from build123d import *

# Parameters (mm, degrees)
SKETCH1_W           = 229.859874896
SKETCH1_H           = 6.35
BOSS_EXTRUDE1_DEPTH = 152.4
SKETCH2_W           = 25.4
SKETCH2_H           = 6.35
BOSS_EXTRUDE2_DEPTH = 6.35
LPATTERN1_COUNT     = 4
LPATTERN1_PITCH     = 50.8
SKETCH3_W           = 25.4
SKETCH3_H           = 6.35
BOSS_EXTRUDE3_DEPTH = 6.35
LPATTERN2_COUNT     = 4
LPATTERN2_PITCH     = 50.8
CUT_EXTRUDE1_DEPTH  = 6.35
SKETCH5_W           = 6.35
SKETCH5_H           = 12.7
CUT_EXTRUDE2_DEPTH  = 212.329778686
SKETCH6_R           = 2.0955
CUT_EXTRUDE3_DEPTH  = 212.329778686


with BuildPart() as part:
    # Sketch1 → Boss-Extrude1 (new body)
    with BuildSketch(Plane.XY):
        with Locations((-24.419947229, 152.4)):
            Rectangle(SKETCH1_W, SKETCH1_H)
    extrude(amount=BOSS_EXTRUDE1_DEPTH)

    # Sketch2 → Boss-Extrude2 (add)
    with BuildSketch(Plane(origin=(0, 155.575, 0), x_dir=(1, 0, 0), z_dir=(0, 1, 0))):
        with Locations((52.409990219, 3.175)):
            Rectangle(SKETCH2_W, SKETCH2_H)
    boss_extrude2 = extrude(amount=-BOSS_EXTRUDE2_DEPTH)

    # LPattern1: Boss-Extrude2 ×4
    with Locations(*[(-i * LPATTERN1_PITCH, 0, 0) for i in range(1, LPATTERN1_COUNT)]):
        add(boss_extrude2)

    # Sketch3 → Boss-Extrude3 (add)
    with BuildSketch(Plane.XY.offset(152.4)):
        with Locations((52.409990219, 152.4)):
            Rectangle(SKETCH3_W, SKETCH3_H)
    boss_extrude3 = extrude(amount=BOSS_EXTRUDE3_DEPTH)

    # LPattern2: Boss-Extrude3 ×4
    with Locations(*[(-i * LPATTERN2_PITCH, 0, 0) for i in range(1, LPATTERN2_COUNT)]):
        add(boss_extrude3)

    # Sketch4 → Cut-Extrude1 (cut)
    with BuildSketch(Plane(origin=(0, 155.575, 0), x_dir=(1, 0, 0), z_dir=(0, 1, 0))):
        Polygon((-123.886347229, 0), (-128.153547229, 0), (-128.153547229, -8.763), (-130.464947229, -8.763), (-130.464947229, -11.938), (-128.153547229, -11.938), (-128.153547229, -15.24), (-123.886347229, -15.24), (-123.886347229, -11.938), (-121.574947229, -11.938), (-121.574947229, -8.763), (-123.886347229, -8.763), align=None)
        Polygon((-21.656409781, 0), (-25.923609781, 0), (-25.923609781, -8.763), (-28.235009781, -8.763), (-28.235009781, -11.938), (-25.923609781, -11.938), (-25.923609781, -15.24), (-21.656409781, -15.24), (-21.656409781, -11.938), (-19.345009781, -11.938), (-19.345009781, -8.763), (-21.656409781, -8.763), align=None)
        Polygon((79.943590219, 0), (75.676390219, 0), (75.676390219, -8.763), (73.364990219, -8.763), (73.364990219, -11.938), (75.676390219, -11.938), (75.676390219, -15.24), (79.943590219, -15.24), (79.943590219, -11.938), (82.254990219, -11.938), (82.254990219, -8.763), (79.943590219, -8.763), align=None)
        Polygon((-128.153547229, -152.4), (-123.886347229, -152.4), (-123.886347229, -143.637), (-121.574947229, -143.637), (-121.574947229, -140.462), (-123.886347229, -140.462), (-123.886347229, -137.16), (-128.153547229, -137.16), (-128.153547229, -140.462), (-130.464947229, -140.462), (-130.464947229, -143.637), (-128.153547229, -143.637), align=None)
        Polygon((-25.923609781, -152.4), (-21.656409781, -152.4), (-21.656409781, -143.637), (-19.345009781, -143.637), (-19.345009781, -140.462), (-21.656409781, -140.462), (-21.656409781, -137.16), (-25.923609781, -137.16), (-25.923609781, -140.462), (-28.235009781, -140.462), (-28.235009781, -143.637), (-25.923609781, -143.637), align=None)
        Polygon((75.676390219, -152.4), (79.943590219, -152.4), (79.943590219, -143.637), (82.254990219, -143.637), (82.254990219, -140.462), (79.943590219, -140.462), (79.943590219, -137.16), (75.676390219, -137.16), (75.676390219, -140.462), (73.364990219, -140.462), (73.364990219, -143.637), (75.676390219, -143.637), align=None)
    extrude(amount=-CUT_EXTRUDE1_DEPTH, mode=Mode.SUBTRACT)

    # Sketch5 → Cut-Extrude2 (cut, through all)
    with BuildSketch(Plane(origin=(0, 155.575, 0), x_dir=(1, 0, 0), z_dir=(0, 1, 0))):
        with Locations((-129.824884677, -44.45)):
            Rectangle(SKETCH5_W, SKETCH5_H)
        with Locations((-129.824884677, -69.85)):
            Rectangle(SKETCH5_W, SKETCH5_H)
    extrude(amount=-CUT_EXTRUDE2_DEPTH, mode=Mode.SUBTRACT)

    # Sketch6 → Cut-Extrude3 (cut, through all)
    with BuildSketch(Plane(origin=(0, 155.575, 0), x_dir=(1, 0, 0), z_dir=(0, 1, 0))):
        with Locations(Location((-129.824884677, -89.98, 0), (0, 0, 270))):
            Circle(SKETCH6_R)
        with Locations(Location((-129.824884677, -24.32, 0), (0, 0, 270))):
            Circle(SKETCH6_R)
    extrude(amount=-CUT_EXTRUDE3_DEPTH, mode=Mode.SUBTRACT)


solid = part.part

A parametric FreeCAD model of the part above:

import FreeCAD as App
import Part
import Sketcher
from FreeCAD import Vector
Q = App.Units.Quantity

doc = App.newDocument("Part")
params = doc.addObject("Spreadsheet::Sheet", "Params")
for row, (alias, value) in enumerate([
    ("sketch1_height", "0.25 in"),
    ("pad1_length", "6 in"),
    ("sketch2_width", "1 in"),
    ("sketch2_height", "0.25 in"),
    ("pad2_length", "0.25 in"),
    ("linearpattern_pitch", "2 in"),
    ("sketch3_width", "1 in"),
    ("sketch3_height", "0.25 in"),
    ("pad3_length", "0.25 in"),
    ("linearpattern2_pitch", "2 in"),
    ("sketch4_height", "0.13 in"),
    ("sketch4_width", "0.168 in"),
    ("sketch4_width2", "0.091 in"),
    ("sketch4_height2", "0.345 in"),
    ("pocket1_length", "0.25 in"),
    ("sketch5_height", "0.5 in"),
    ("sketch5_width", "0.25 in"),
    ("sketch6_diameter", "0.165 in"),
], start=1):
    params.set(f"A{row}", alias)
    params.set(f"B{row}", "=" + value)
    params.setAlias(f"B{row}", alias)

body = doc.addObject("PartDesign::Body", "Body")

sketch1 = doc.addObject("Sketcher::SketchObject", "Sketch")
body.addObject(sketch1)
sketch1.AttachmentSupport = (doc.XY_Plane, [""])
sketch1.MapMode = "FlatFace"
sketch1.addGeometry([
    Part.LineSegment(Vector(-139.349885, 155.575, 0), Vector(-139.349885, 149.225, 0)),
    Part.LineSegment(Vector(-139.349885, 149.225, 0), Vector(90.50999, 149.225, 0)),
    Part.LineSegment(Vector(90.50999, 149.225, 0), Vector(90.50999, 155.575, 0)),
    Part.LineSegment(Vector(90.50999, 155.575, 0), Vector(-139.349885, 155.575, 0)),
], False)
sketch1.addConstraint([
    Sketcher.Constraint("Coincident", 0, 2, 1, 1),
    Sketcher.Constraint("Coincident", 1, 2, 2, 1),
    Sketcher.Constraint("Coincident", 2, 2, 3, 1),
    Sketcher.Constraint("Coincident", 3, 2, 0, 1),
    Sketcher.Constraint("Vertical", 0),
    Sketcher.Constraint("Horizontal", 1),
    Sketcher.Constraint("Vertical", 2),
    Sketcher.Constraint("Horizontal", 3),
    Sketcher.Constraint("DistanceY", 0, 2, 0, 1, Q("0.25 in")),
    Sketcher.Constraint("DistanceY", -1, 1, 0, 2, Q("5.875 in")),
    Sketcher.Constraint("DistanceX", 1, 1, 1, 2, 229.859875),
    Sketcher.Constraint("DistanceX", -1, 1, 1, 2, 90.50999),
])
sketch1.setExpression("Constraints[8]", "Params.sketch1_height")
pad1 = doc.addObject("PartDesign::Pad", "Pad")
body.addObject(pad1)
pad1.Profile = sketch1
pad1.setExpression("Length", "Params.pad1_length")

sketch2 = doc.addObject("Sketcher::SketchObject", "Sketch001")
body.addObject(sketch2)
sketch2.AttachmentSupport = (doc.XZ_Plane, [""])
sketch2.MapMode = "FlatFace"
sketch2.AttachmentOffset = App.Placement(Vector(0, 0, -6.125 * 25.4), App.Rotation())
sketch2.addGeometry([
    Part.LineSegment(Vector(39.70999, -6.35, 0), Vector(39.70999, 0, 0)),
    Part.LineSegment(Vector(39.70999, 0, 0), Vector(65.10999, 0, 0)),
    Part.LineSegment(Vector(65.10999, 0, 0), Vector(65.10999, -6.35, 0)),
    Part.LineSegment(Vector(65.10999, -6.35, 0), Vector(39.70999, -6.35, 0)),
], False)
sketch2.addConstraint([
    Sketcher.Constraint("Coincident", 0, 2, 1, 1),
    Sketcher.Constraint("Coincident", 1, 2, 2, 1),
    Sketcher.Constraint("Coincident", 2, 2, 3, 1),
    Sketcher.Constraint("Coincident", 3, 2, 0, 1),
    Sketcher.Constraint("Vertical", 0),
    Sketcher.Constraint("Horizontal", 1),
    Sketcher.Constraint("Vertical", 2),
    Sketcher.Constraint("Horizontal", 3),
    Sketcher.Constraint("PointOnObject", 0, 2, -1),
    Sketcher.Constraint("DistanceX", 1, 1, 1, 2, Q("1 in")),
    Sketcher.Constraint("DistanceY", 0, 1, 0, 2, Q("0.25 in")),
    Sketcher.Constraint("DistanceX", -1, 1, 0, 2, 39.70999),
])
sketch2.setExpression("Constraints[9]", "Params.sketch2_width")
sketch2.setExpression("Constraints[10]", "Params.sketch2_height")
pad2 = doc.addObject("PartDesign::Pad", "Pad001")
body.addObject(pad2)
pad2.Profile = sketch2
pad2.setExpression("Length", "Params.pad2_length")
doc.recompute()

linearpattern = doc.addObject("PartDesign::LinearPattern", "LinearPattern")
body.addObject(linearpattern)
linearpattern.Originals = [pad2]
linearpattern.Direction = (doc.X_Axis, [""])
linearpattern.Mode = "offset"
linearpattern.setExpression("Offset", "Params.linearpattern_pitch")
linearpattern.Occurrences = 4
linearpattern.Reversed = True
body.Tip = linearpattern

sketch3 = doc.addObject("Sketcher::SketchObject", "Sketch002")
body.addObject(sketch3)
sketch3.AttachmentSupport = (doc.XY_Plane, [""])
sketch3.MapMode = "FlatFace"
sketch3.AttachmentOffset = App.Placement(Vector(0, 0, 6 * 25.4), App.Rotation())
sketch3.addGeometry([
    Part.LineSegment(Vector(39.70999, 155.575, 0), Vector(39.70999, 149.225, 0)),
    Part.LineSegment(Vector(39.70999, 149.225, 0), Vector(65.10999, 149.225, 0)),
    Part.LineSegment(Vector(65.10999, 149.225, 0), Vector(65.10999, 155.575, 0)),
    Part.LineSegment(Vector(65.10999, 155.575, 0), Vector(39.70999, 155.575, 0)),
], False)
sketch3.addConstraint([
    Sketcher.Constraint("Coincident", 0, 2, 1, 1),
    Sketcher.Constraint("Coincident", 1, 2, 2, 1),
    Sketcher.Constraint("Coincident", 2, 2, 3, 1),
    Sketcher.Constraint("Coincident", 3, 2, 0, 1),
    Sketcher.Constraint("Vertical", 0),
    Sketcher.Constraint("Horizontal", 1),
    Sketcher.Constraint("Vertical", 2),
    Sketcher.Constraint("Horizontal", 3),
    Sketcher.Constraint("DistanceX", 1, 1, 1, 2, Q("1 in")),
    Sketcher.Constraint("DistanceY", 0, 2, 0, 1, Q("0.25 in")),
    Sketcher.Constraint("DistanceY", -1, 1, 0, 2, Q("5.875 in")),
    Sketcher.Constraint("DistanceX", -1, 1, 0, 2, 39.70999),
])
sketch3.setExpression("Constraints[8]", "Params.sketch3_width")
sketch3.setExpression("Constraints[9]", "Params.sketch3_height")
pad3 = doc.addObject("PartDesign::Pad", "Pad002")
body.addObject(pad3)
pad3.Profile = sketch3
pad3.setExpression("Length", "Params.pad3_length")
doc.recompute()

linearpattern2 = doc.addObject("PartDesign::LinearPattern", "LinearPattern001")
body.addObject(linearpattern2)
linearpattern2.Originals = [pad3]
linearpattern2.Direction = (doc.X_Axis, [""])
linearpattern2.Mode = "offset"
linearpattern2.setExpression("Offset", "Params.linearpattern2_pitch")
linearpattern2.Occurrences = 4
linearpattern2.Reversed = True
body.Tip = linearpattern2

sketch4 = doc.addObject("Sketcher::SketchObject", "Sketch003")
body.addObject(sketch4)
sketch4.AttachmentSupport = (doc.XZ_Plane, [""])
sketch4.MapMode = "FlatFace"
sketch4.AttachmentOffset = App.Placement(Vector(0, 0, -6.125 * 25.4), App.Rotation())
sketch4.addGeometry([
    Part.LineSegment(Vector(-123.886347, 0, 0), Vector(-128.153547, 0, 0)),
    Part.LineSegment(Vector(-128.153547, 0, 0), Vector(-128.153547, 8.763, 0)),
    Part.LineSegment(Vector(-128.153547, 8.763, 0), Vector(-130.464947, 8.763, 0)),
    Part.LineSegment(Vector(-130.464947, 8.763, 0), Vector(-130.464947, 11.938, 0)),
    Part.LineSegment(Vector(-130.464947, 11.938, 0), Vector(-128.153547, 11.938, 0)),
    Part.LineSegment(Vector(-128.153547, 11.938, 0), Vector(-128.153547, 15.24, 0)),
    Part.LineSegment(Vector(-128.153547, 15.24, 0), Vector(-123.886347, 15.24, 0)),
    Part.LineSegment(Vector(-123.886347, 15.24, 0), Vector(-123.886347, 11.938, 0)),
    Part.LineSegment(Vector(-123.886347, 11.938, 0), Vector(-121.574947, 11.938, 0)),
    Part.LineSegment(Vector(-121.574947, 11.938, 0), Vector(-121.574947, 8.763, 0)),
    Part.LineSegment(Vector(-121.574947, 8.763, 0), Vector(-123.886347, 8.763, 0)),
    Part.LineSegment(Vector(-123.886347, 8.763, 0), Vector(-123.886347, 0, 0)),
    Part.LineSegment(Vector(-21.65641, 0, 0), Vector(-25.92361, 0, 0)),
    Part.LineSegment(Vector(-25.92361, 0, 0), Vector(-25.92361, 8.763, 0)),
    Part.LineSegment(Vector(-25.92361, 8.763, 0), Vector(-28.23501, 8.763, 0)),
    Part.LineSegment(Vector(-28.23501, 8.763, 0), Vector(-28.23501, 11.938, 0)),
    Part.LineSegment(Vector(-28.23501, 11.938, 0), Vector(-25.92361, 11.938, 0)),
    Part.LineSegment(Vector(-25.92361, 11.938, 0), Vector(-25.92361, 15.24, 0)),
    Part.LineSegment(Vector(-25.92361, 15.24, 0), Vector(-21.65641, 15.24, 0)),
    Part.LineSegment(Vector(-21.65641, 15.24, 0), Vector(-21.65641, 11.938, 0)),
    Part.LineSegment(Vector(-21.65641, 11.938, 0), Vector(-19.34501, 11.938, 0)),
    Part.LineSegment(Vector(-19.34501, 11.938, 0), Vector(-19.34501, 8.763, 0)),
    Part.LineSegment(Vector(-19.34501, 8.763, 0), Vector(-21.65641, 8.763, 0)),
    Part.LineSegment(Vector(-21.65641, 8.763, 0), Vector(-21.65641, 0, 0)),
    Part.LineSegment(Vector(79.94359, 0, 0), Vector(75.67639, 0, 0)),
    Part.LineSegment(Vector(75.67639, 0, 0), Vector(75.67639, 8.763, 0)),
    Part.LineSegment(Vector(75.67639, 8.763, 0), Vector(73.36499, 8.763, 0)),
    Part.LineSegment(Vector(73.36499, 8.763, 0), Vector(73.36499, 11.938, 0)),
    Part.LineSegment(Vector(73.36499, 11.938, 0), Vector(75.67639, 11.938, 0)),
    Part.LineSegment(Vector(75.67639, 11.938, 0), Vector(75.67639, 15.24, 0)),
    Part.LineSegment(Vector(75.67639, 15.24, 0), Vector(79.94359, 15.24, 0)),
    Part.LineSegment(Vector(79.94359, 15.24, 0), Vector(79.94359, 11.938, 0)),
    Part.LineSegment(Vector(79.94359, 11.938, 0), Vector(82.25499, 11.938, 0)),
    Part.LineSegment(Vector(82.25499, 11.938, 0), Vector(82.25499, 8.763, 0)),
    Part.LineSegment(Vector(82.25499, 8.763, 0), Vector(79.94359, 8.763, 0)),
    Part.LineSegment(Vector(79.94359, 8.763, 0), Vector(79.94359, 0, 0)),
    Part.LineSegment(Vector(-128.153547, 152.4, 0), Vector(-123.886347, 152.4, 0)),
    Part.LineSegment(Vector(-123.886347, 152.4, 0), Vector(-123.886347, 143.637, 0)),
    Part.LineSegment(Vector(-123.886347, 143.637, 0), Vector(-121.574947, 143.637, 0)),
    Part.LineSegment(Vector(-121.574947, 143.637, 0), Vector(-121.574947, 140.462, 0)),
    Part.LineSegment(Vector(-121.574947, 140.462, 0), Vector(-123.886347, 140.462, 0)),
    Part.LineSegment(Vector(-123.886347, 140.462, 0), Vector(-123.886347, 137.16, 0)),
    Part.LineSegment(Vector(-123.886347, 137.16, 0), Vector(-128.153547, 137.16, 0)),
    Part.LineSegment(Vector(-128.153547, 137.16, 0), Vector(-128.153547, 140.462, 0)),
    Part.LineSegment(Vector(-128.153547, 140.462, 0), Vector(-130.464947, 140.462, 0)),
    Part.LineSegment(Vector(-130.464947, 140.462, 0), Vector(-130.464947, 143.637, 0)),
    Part.LineSegment(Vector(-130.464947, 143.637, 0), Vector(-128.153547, 143.637, 0)),
    Part.LineSegment(Vector(-128.153547, 143.637, 0), Vector(-128.153547, 152.4, 0)),
    Part.LineSegment(Vector(-25.92361, 152.4, 0), Vector(-21.65641, 152.4, 0)),
    Part.LineSegment(Vector(-21.65641, 152.4, 0), Vector(-21.65641, 143.637, 0)),
    Part.LineSegment(Vector(-21.65641, 143.637, 0), Vector(-19.34501, 143.637, 0)),
    Part.LineSegment(Vector(-19.34501, 143.637, 0), Vector(-19.34501, 140.462, 0)),
    Part.LineSegment(Vector(-19.34501, 140.462, 0), Vector(-21.65641, 140.462, 0)),
    Part.LineSegment(Vector(-21.65641, 140.462, 0), Vector(-21.65641, 137.16, 0)),
    Part.LineSegment(Vector(-21.65641, 137.16, 0), Vector(-25.92361, 137.16, 0)),
    Part.LineSegment(Vector(-25.92361, 137.16, 0), Vector(-25.92361, 140.462, 0)),
    Part.LineSegment(Vector(-25.92361, 140.462, 0), Vector(-28.23501, 140.462, 0)),
    Part.LineSegment(Vector(-28.23501, 140.462, 0), Vector(-28.23501, 143.637, 0)),
    Part.LineSegment(Vector(-28.23501, 143.637, 0), Vector(-25.92361, 143.637, 0)),
    Part.LineSegment(Vector(-25.92361, 143.637, 0), Vector(-25.92361, 152.4, 0)),
    Part.LineSegment(Vector(75.67639, 152.4, 0), Vector(79.94359, 152.4, 0)),
    Part.LineSegment(Vector(79.94359, 152.4, 0), Vector(79.94359, 143.637, 0)),
    Part.LineSegment(Vector(79.94359, 143.637, 0), Vector(82.25499, 143.637, 0)),
    Part.LineSegment(Vector(82.25499, 143.637, 0), Vector(82.25499, 140.462, 0)),
    Part.LineSegment(Vector(82.25499, 140.462, 0), Vector(79.94359, 140.462, 0)),
    Part.LineSegment(Vector(79.94359, 140.462, 0), Vector(79.94359, 137.16, 0)),
    Part.LineSegment(Vector(79.94359, 137.16, 0), Vector(75.67639, 137.16, 0)),
    Part.LineSegment(Vector(75.67639, 137.16, 0), Vector(75.67639, 140.462, 0)),
    Part.LineSegment(Vector(75.67639, 140.462, 0), Vector(73.36499, 140.462, 0)),
    Part.LineSegment(Vector(73.36499, 140.462, 0), Vector(73.36499, 143.637, 0)),
    Part.LineSegment(Vector(73.36499, 143.637, 0), Vector(75.67639, 143.637, 0)),
    Part.LineSegment(Vector(75.67639, 143.637, 0), Vector(75.67639, 152.4, 0)),
], False)
sketch4.addConstraint([
    Sketcher.Constraint("Coincident", 0, 2, 1, 1),
    Sketcher.Constraint("Coincident", 1, 2, 2, 1),
    Sketcher.Constraint("Coincident", 2, 2, 3, 1),
    Sketcher.Constraint("Coincident", 3, 2, 4, 1),
    Sketcher.Constraint("Coincident", 4, 2, 5, 1),
    Sketcher.Constraint("Coincident", 5, 2, 6, 1),
    Sketcher.Constraint("Coincident", 6, 2, 7, 1),
    Sketcher.Constraint("Coincident", 7, 2, 8, 1),
    Sketcher.Constraint("Coincident", 8, 2, 9, 1),
    Sketcher.Constraint("Coincident", 9, 2, 10, 1),
    Sketcher.Constraint("Coincident", 10, 2, 11, 1),
    Sketcher.Constraint("Coincident", 11, 2, 0, 1),
    Sketcher.Constraint("Coincident", 12, 2, 13, 1),
    Sketcher.Constraint("Coincident", 13, 2, 14, 1),
    Sketcher.Constraint("Coincident", 14, 2, 15, 1),
    Sketcher.Constraint("Coincident", 15, 2, 16, 1),
    Sketcher.Constraint("Coincident", 16, 2, 17, 1),
    Sketcher.Constraint("Coincident", 17, 2, 18, 1),
    Sketcher.Constraint("Coincident", 18, 2, 19, 1),
    Sketcher.Constraint("Coincident", 19, 2, 20, 1),
    Sketcher.Constraint("Coincident", 20, 2, 21, 1),
    Sketcher.Constraint("Coincident", 21, 2, 22, 1),
    Sketcher.Constraint("Coincident", 22, 2, 23, 1),
    Sketcher.Constraint("Coincident", 23, 2, 12, 1),
    Sketcher.Constraint("Coincident", 24, 2, 25, 1),
    Sketcher.Constraint("Coincident", 25, 2, 26, 1),
    Sketcher.Constraint("Coincident", 26, 2, 27, 1),
    Sketcher.Constraint("Coincident", 27, 2, 28, 1),
    Sketcher.Constraint("Coincident", 28, 2, 29, 1),
    Sketcher.Constraint("Coincident", 29, 2, 30, 1),
    Sketcher.Constraint("Coincident", 30, 2, 31, 1),
    Sketcher.Constraint("Coincident", 31, 2, 32, 1),
    Sketcher.Constraint("Coincident", 32, 2, 33, 1),
    Sketcher.Constraint("Coincident", 33, 2, 34, 1),
    Sketcher.Constraint("Coincident", 34, 2, 35, 1),
    Sketcher.Constraint("Coincident", 35, 2, 24, 1),
    Sketcher.Constraint("Coincident", 36, 2, 37, 1),
    Sketcher.Constraint("Coincident", 37, 2, 38, 1),
    Sketcher.Constraint("Coincident", 38, 2, 39, 1),
    Sketcher.Constraint("Coincident", 39, 2, 40, 1),
    Sketcher.Constraint("Coincident", 40, 2, 41, 1),
    Sketcher.Constraint("Coincident", 41, 2, 42, 1),
    Sketcher.Constraint("Coincident", 42, 2, 43, 1),
    Sketcher.Constraint("Coincident", 43, 2, 44, 1),
    Sketcher.Constraint("Coincident", 44, 2, 45, 1),
    Sketcher.Constraint("Coincident", 45, 2, 46, 1),
    Sketcher.Constraint("Coincident", 46, 2, 47, 1),
    Sketcher.Constraint("Coincident", 47, 2, 36, 1),
    Sketcher.Constraint("Coincident", 48, 2, 49, 1),
    Sketcher.Constraint("Coincident", 49, 2, 50, 1),
    Sketcher.Constraint("Coincident", 50, 2, 51, 1),
    Sketcher.Constraint("Coincident", 51, 2, 52, 1),
    Sketcher.Constraint("Coincident", 52, 2, 53, 1),
    Sketcher.Constraint("Coincident", 53, 2, 54, 1),
    Sketcher.Constraint("Coincident", 54, 2, 55, 1),
    Sketcher.Constraint("Coincident", 55, 2, 56, 1),
    Sketcher.Constraint("Coincident", 56, 2, 57, 1),
    Sketcher.Constraint("Coincident", 57, 2, 58, 1),
    Sketcher.Constraint("Coincident", 58, 2, 59, 1),
    Sketcher.Constraint("Coincident", 59, 2, 48, 1),
    Sketcher.Constraint("Coincident", 60, 2, 61, 1),
    Sketcher.Constraint("Coincident", 61, 2, 62, 1),
    Sketcher.Constraint("Coincident", 62, 2, 63, 1),
    Sketcher.Constraint("Coincident", 63, 2, 64, 1),
    Sketcher.Constraint("Coincident", 64, 2, 65, 1),
    Sketcher.Constraint("Coincident", 65, 2, 66, 1),
    Sketcher.Constraint("Coincident", 66, 2, 67, 1),
    Sketcher.Constraint("Coincident", 67, 2, 68, 1),
    Sketcher.Constraint("Coincident", 68, 2, 69, 1),
    Sketcher.Constraint("Coincident", 69, 2, 70, 1),
    Sketcher.Constraint("Coincident", 70, 2, 71, 1),
    Sketcher.Constraint("Coincident", 71, 2, 60, 1),
    Sketcher.Constraint("Horizontal", 0),
    Sketcher.Constraint("Vertical", 1),
    Sketcher.Constraint("Horizontal", 2),
    Sketcher.Constraint("Vertical", 3),
    Sketcher.Constraint("Horizontal", 4),
    Sketcher.Constraint("Vertical", 5),
    Sketcher.Constraint("Horizontal", 6),
    Sketcher.Constraint("Vertical", 7),
    Sketcher.Constraint("Horizontal", 8),
    Sketcher.Constraint("Vertical", 9),
    Sketcher.Constraint("Horizontal", 10),
    Sketcher.Constraint("Vertical", 11),
    Sketcher.Constraint("Horizontal", 12),
    Sketcher.Constraint("Vertical", 13),
    Sketcher.Constraint("Horizontal", 14),
    Sketcher.Constraint("Vertical", 15),
    Sketcher.Constraint("Horizontal", 16),
    Sketcher.Constraint("Vertical", 17),
    Sketcher.Constraint("Horizontal", 18),
    Sketcher.Constraint("Vertical", 19),
    Sketcher.Constraint("Horizontal", 20),
    Sketcher.Constraint("Vertical", 21),
    Sketcher.Constraint("Horizontal", 22),
    Sketcher.Constraint("Vertical", 23),
    Sketcher.Constraint("Horizontal", 24),
    Sketcher.Constraint("Vertical", 25),
    Sketcher.Constraint("Horizontal", 26),
    Sketcher.Constraint("Vertical", 27),
    Sketcher.Constraint("Horizontal", 28),
    Sketcher.Constraint("Vertical", 29),
    Sketcher.Constraint("Horizontal", 30),
    Sketcher.Constraint("Vertical", 31),
    Sketcher.Constraint("Horizontal", 32),
    Sketcher.Constraint("Vertical", 33),
    Sketcher.Constraint("Horizontal", 34),
    Sketcher.Constraint("Vertical", 35),
    Sketcher.Constraint("Horizontal", 36),
    Sketcher.Constraint("Vertical", 37),
    Sketcher.Constraint("Horizontal", 38),
    Sketcher.Constraint("Vertical", 39),
    Sketcher.Constraint("Horizontal", 40),
    Sketcher.Constraint("Vertical", 41),
    Sketcher.Constraint("Horizontal", 42),
    Sketcher.Constraint("Vertical", 43),
    Sketcher.Constraint("Horizontal", 44),
    Sketcher.Constraint("Vertical", 45),
    Sketcher.Constraint("Horizontal", 46),
    Sketcher.Constraint("Vertical", 47),
    Sketcher.Constraint("Horizontal", 48),
    Sketcher.Constraint("Vertical", 49),
    Sketcher.Constraint("Horizontal", 50),
    Sketcher.Constraint("Vertical", 51),
    Sketcher.Constraint("Horizontal", 52),
    Sketcher.Constraint("Vertical", 53),
    Sketcher.Constraint("Horizontal", 54),
    Sketcher.Constraint("Vertical", 55),
    Sketcher.Constraint("Horizontal", 56),
    Sketcher.Constraint("Vertical", 57),
    Sketcher.Constraint("Horizontal", 58),
    Sketcher.Constraint("Vertical", 59),
    Sketcher.Constraint("Horizontal", 60),
    Sketcher.Constraint("Vertical", 61),
    Sketcher.Constraint("Horizontal", 62),
    Sketcher.Constraint("Vertical", 63),
    Sketcher.Constraint("Horizontal", 64),
    Sketcher.Constraint("Vertical", 65),
    Sketcher.Constraint("Horizontal", 66),
    Sketcher.Constraint("Vertical", 67),
    Sketcher.Constraint("Horizontal", 68),
    Sketcher.Constraint("Vertical", 69),
    Sketcher.Constraint("Horizontal", 70),
    Sketcher.Constraint("Vertical", 71),
    Sketcher.Constraint("PointOnObject", 0, 2, -1),
    Sketcher.Constraint("PointOnObject", 12, 2, -1),
    Sketcher.Constraint("PointOnObject", 24, 2, -1),
    Sketcher.Constraint("Horizontal", 4, 2, 7, 2),
    Sketcher.Constraint("Horizontal", 2, 2, 9, 2),
    Sketcher.Constraint("Horizontal", 10, 2, 13, 2),
    Sketcher.Constraint("Horizontal", 8, 2, 15, 2),
    Sketcher.Constraint("Horizontal", 6, 2, 17, 2),
    Sketcher.Constraint("Horizontal", 16, 2, 19, 2),
    Sketcher.Constraint("Horizontal", 14, 2, 21, 2),
    Sketcher.Constraint("Horizontal", 22, 2, 25, 2),
    Sketcher.Constraint("Horizontal", 20, 2, 27, 2),
    Sketcher.Constraint("Horizontal", 18, 2, 29, 2),
    Sketcher.Constraint("Horizontal", 28, 2, 31, 2),
    Sketcher.Constraint("Horizontal", 26, 2, 33, 2),
    Sketcher.Constraint("Horizontal", 40, 2, 43, 2),
    Sketcher.Constraint("Horizontal", 38, 2, 45, 2),
    Sketcher.Constraint("Horizontal", 47, 2, 48, 2),
    Sketcher.Constraint("Horizontal", 46, 2, 49, 2),
    Sketcher.Constraint("Horizontal", 44, 2, 51, 2),
    Sketcher.Constraint("Horizontal", 42, 2, 53, 2),
    Sketcher.Constraint("Horizontal", 52, 2, 55, 2),
    Sketcher.Constraint("Horizontal", 50, 2, 57, 2),
    Sketcher.Constraint("Horizontal", 59, 2, 60, 2),
    Sketcher.Constraint("Horizontal", 58, 2, 61, 2),
    Sketcher.Constraint("Horizontal", 56, 2, 63, 2),
    Sketcher.Constraint("Horizontal", 54, 2, 65, 2),
    Sketcher.Constraint("Horizontal", 64, 2, 67, 2),
    Sketcher.Constraint("Horizontal", 62, 2, 69, 2),
    Sketcher.Constraint("Vertical", 1, 2, 4, 2),
    Sketcher.Constraint("Vertical", 7, 2, 10, 2),
    Sketcher.Constraint("Vertical", 13, 2, 16, 2),
    Sketcher.Constraint("Vertical", 19, 2, 22, 2),
    Sketcher.Constraint("Vertical", 25, 2, 28, 2),
    Sketcher.Constraint("Vertical", 31, 2, 34, 2),
    Sketcher.Constraint("Vertical", 11, 2, 36, 2),
    Sketcher.Constraint("Vertical", 9, 2, 38, 2),
    Sketcher.Constraint("Vertical", 37, 2, 40, 2),
    Sketcher.Constraint("Vertical", 5, 2, 42, 2),
    Sketcher.Constraint("Vertical", 3, 2, 44, 2),
    Sketcher.Constraint("Vertical", 43, 2, 46, 2),
    Sketcher.Constraint("Vertical", 23, 2, 48, 2),
    Sketcher.Constraint("Vertical", 21, 2, 50, 2),
    Sketcher.Constraint("Vertical", 49, 2, 52, 2),
    Sketcher.Constraint("Vertical", 17, 2, 54, 2),
    Sketcher.Constraint("Vertical", 15, 2, 56, 2),
    Sketcher.Constraint("Vertical", 55, 2, 58, 2),
    Sketcher.Constraint("Vertical", 35, 2, 60, 2),
    Sketcher.Constraint("Vertical", 33, 2, 62, 2),
    Sketcher.Constraint("Vertical", 61, 2, 64, 2),
    Sketcher.Constraint("Vertical", 29, 2, 66, 2),
    Sketcher.Constraint("Vertical", 27, 2, 68, 2),
    Sketcher.Constraint("Vertical", 67, 2, 70, 2),
    Sketcher.Constraint("Equal", 4, 8),
    Sketcher.Constraint("Equal", 6, 12),
    Sketcher.Constraint("Equal", 10, 14),
    Sketcher.Constraint("Equal", 16, 20),
    Sketcher.Constraint("Equal", 18, 24),
    Sketcher.Constraint("Equal", 22, 26),
    Sketcher.Constraint("Equal", 28, 32),
    Sketcher.Constraint("Equal", 35, 37),
    Sketcher.Constraint("Equal", 33, 39),
    Sketcher.Constraint("Equal", 31, 41),
    Sketcher.Constraint("DistanceY", -1, 1, 36, 2, Q("6 in")),
    Sketcher.Constraint("DistanceY", 5, 1, 5, 2, Q("0.13 in")),
    Sketcher.Constraint("DistanceY", -1, 1, 5, 2, Q("0.6 in")),
    Sketcher.Constraint("DistanceX", 0, 2, 0, 1, Q("0.168 in")),
    Sketcher.Constraint("DistanceX", 2, 2, 2, 1, Q("0.091 in")),
    Sketcher.Constraint("DistanceY", 1, 1, 1, 2, Q("0.345 in")),
    Sketcher.Constraint("DistanceX", 12, 2, -1, 1, 25.92361),
    Sketcher.Constraint("DistanceX", -1, 1, 24, 2, 75.67639),
    Sketcher.Constraint("DistanceX", 0, 2, -1, 1, 128.153547),
])
sketch4.setExpression("Constraints[208]", "Params.sketch4_height")
sketch4.setExpression("Constraints[210]", "Params.sketch4_width")
sketch4.setExpression("Constraints[211]", "Params.sketch4_width2")
sketch4.setExpression("Constraints[212]", "Params.sketch4_height2")
pocket1 = doc.addObject("PartDesign::Pocket", "Pocket")
body.addObject(pocket1)
pocket1.Profile = sketch4
pocket1.setExpression("Length", "Params.pocket1_length")
pocket1.Reversed = True

sketch5 = doc.addObject("Sketcher::SketchObject", "Sketch004")
body.addObject(sketch5)
sketch5.AttachmentSupport = (doc.XZ_Plane, [""])
sketch5.MapMode = "FlatFace"
sketch5.AttachmentOffset = App.Placement(Vector(0, 0, -6.125 * 25.4), App.Rotation())
sketch5.addGeometry([
    Part.LineSegment(Vector(-132.999885, 38.1, 0), Vector(-132.999885, 50.8, 0)),
    Part.LineSegment(Vector(-132.999885, 50.8, 0), Vector(-126.649885, 50.8, 0)),
    Part.LineSegment(Vector(-126.649885, 50.8, 0), Vector(-126.649885, 38.1, 0)),
    Part.LineSegment(Vector(-126.649885, 38.1, 0), Vector(-132.999885, 38.1, 0)),
    Part.LineSegment(Vector(-132.999885, 63.5, 0), Vector(-132.999885, 76.2, 0)),
    Part.LineSegment(Vector(-132.999885, 76.2, 0), Vector(-126.649885, 76.2, 0)),
    Part.LineSegment(Vector(-126.649885, 76.2, 0), Vector(-126.649885, 63.5, 0)),
    Part.LineSegment(Vector(-126.649885, 63.5, 0), Vector(-132.999885, 63.5, 0)),
], False)
sketch5.addConstraint([
    Sketcher.Constraint("Coincident", 0, 2, 1, 1),
    Sketcher.Constraint("Coincident", 1, 2, 2, 1),
    Sketcher.Constraint("Coincident", 2, 2, 3, 1),
    Sketcher.Constraint("Coincident", 3, 2, 0, 1),
    Sketcher.Constraint("Coincident", 4, 2, 5, 1),
    Sketcher.Constraint("Coincident", 5, 2, 6, 1),
    Sketcher.Constraint("Coincident", 6, 2, 7, 1),
    Sketcher.Constraint("Coincident", 7, 2, 4, 1),
    Sketcher.Constraint("Vertical", 0),
    Sketcher.Constraint("Horizontal", 1),
    Sketcher.Constraint("Vertical", 2),
    Sketcher.Constraint("Horizontal", 3),
    Sketcher.Constraint("Vertical", 4),
    Sketcher.Constraint("Horizontal", 5),
    Sketcher.Constraint("Vertical", 6),
    Sketcher.Constraint("Horizontal", 7),
    Sketcher.Constraint("Vertical", 3, 2, 4, 2),
    Sketcher.Constraint("Vertical", 2, 2, 5, 2),
    Sketcher.Constraint("Equal", 2, 4),
    Sketcher.Constraint("DistanceY", 0, 1, 0, 2, Q("0.5 in")),
    Sketcher.Constraint("DistanceY", -1, 1, 0, 2, Q("2 in")),
    Sketcher.Constraint("DistanceY", -1, 1, 4, 2, Q("3 in")),
    Sketcher.Constraint("DistanceX", 1, 1, 1, 2, Q("0.25 in")),
    Sketcher.Constraint("DistanceX", 0, 2, -1, 1, 132.999885),
])
sketch5.setExpression("Constraints[19]", "Params.sketch5_height")
sketch5.setExpression("Constraints[22]", "Params.sketch5_width")
pocket2 = doc.addObject("PartDesign::Pocket", "Pocket001")
body.addObject(pocket2)
pocket2.Profile = sketch5
pocket2.Type = "ThroughAll"
pocket2.Reversed = True

sketch6 = doc.addObject("Sketcher::SketchObject", "Sketch005")
body.addObject(sketch6)
sketch6.AttachmentSupport = (doc.XZ_Plane, [""])
sketch6.MapMode = "FlatFace"
sketch6.AttachmentOffset = App.Placement(Vector(0, 0, -6.125 * 25.4), App.Rotation())
sketch6.addGeometry([
    Part.Circle(Vector(-129.824885, 89.98, 0), Vector(0, 0, 1), 2.0955),
    Part.Circle(Vector(-129.824885, 24.32, 0), Vector(0, 0, 1), 2.0955),
], False)
sketch6.addConstraint([
    Sketcher.Constraint("Equal", 0, 1),
    Sketcher.Constraint("Vertical", 0, 3, 1, 3),
    Sketcher.Constraint("Diameter", 0, Q("0.165 in")),
    Sketcher.Constraint("DistanceY", -1, 1, 0, 3, 89.98),
    Sketcher.Constraint("DistanceY", -1, 1, 1, 3, 24.32),
    Sketcher.Constraint("DistanceX", 0, 3, -1, 1, 129.824885),
])
sketch6.setExpression("Constraints[2]", "Params.sketch6_diameter")
pocket3 = doc.addObject("PartDesign::Pocket", "Pocket002")
body.addObject(pocket3)
pocket3.Profile = sketch6
pocket3.Type = "ThroughAll"
pocket3.Reversed = True

doc.recompute()
